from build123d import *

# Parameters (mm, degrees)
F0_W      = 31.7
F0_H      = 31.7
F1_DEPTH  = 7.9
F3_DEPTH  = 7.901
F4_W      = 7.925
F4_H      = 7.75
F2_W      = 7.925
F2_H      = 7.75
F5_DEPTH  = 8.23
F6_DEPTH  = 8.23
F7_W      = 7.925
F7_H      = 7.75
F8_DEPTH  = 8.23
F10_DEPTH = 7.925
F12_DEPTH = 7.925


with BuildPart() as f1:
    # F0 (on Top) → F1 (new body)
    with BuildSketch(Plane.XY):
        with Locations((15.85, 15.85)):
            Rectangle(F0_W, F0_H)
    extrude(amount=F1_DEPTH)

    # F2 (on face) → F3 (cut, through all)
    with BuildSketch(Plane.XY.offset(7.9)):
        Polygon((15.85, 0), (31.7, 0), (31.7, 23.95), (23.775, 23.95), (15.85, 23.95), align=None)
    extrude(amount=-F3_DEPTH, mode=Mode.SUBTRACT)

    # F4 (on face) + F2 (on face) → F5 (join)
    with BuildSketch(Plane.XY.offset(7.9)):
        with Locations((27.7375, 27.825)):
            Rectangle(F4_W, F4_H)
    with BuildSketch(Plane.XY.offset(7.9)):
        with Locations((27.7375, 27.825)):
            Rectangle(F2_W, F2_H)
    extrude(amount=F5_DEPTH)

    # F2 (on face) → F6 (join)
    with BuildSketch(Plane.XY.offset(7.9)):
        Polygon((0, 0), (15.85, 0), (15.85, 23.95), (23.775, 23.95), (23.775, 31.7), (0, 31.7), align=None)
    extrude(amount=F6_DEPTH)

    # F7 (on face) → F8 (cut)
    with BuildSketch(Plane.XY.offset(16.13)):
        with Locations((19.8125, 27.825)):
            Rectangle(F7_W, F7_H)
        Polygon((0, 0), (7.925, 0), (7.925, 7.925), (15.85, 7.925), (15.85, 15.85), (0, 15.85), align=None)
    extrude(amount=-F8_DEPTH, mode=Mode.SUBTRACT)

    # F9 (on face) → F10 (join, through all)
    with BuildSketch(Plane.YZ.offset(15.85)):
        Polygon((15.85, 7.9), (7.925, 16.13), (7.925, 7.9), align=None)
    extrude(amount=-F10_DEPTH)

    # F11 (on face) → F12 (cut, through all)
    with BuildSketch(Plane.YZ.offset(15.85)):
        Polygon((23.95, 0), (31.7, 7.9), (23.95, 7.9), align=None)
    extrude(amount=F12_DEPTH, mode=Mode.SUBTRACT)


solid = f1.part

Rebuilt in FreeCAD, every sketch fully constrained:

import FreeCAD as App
import Part
import Sketcher
from FreeCAD import Vector
Q = App.Units.Quantity


def add_polygon(sketch, points):
    """Adds a closed chain of lines whose ends are joined by coincident constraints."""
    first, n = sketch.GeometryCount, len(points)
    for a, b in zip(points, points[1:] + points[:1]):
        sketch.addGeometry(Part.LineSegment(App.Vector(*a, 0), App.Vector(*b, 0)), False)
    for i in range(n):
        sketch.addConstraint(Sketcher.Constraint("Coincident", first + i, 2, first + (i + 1) % n, 1))

doc = App.newDocument("Part")
body = doc.addObject("PartDesign::Body", "Body")

# Sketch on XY plane
sketch1 = body.newObject("Sketcher::SketchObject", "Sketch")
sketch1.AttachmentSupport = (doc.getObject("XY_Plane"), [""])
sketch1.MapMode = "FlatFace"
add_polygon(sketch1, [(0, 32), (0, 0), (32, 0), (32, 32)])  # lines 0-3
sketch1.addConstraint([
    Sketcher.Constraint("Vertical", 0),
    Sketcher.Constraint("Horizontal", 1),
    Sketcher.Constraint("Vertical", 2),
    Sketcher.Constraint("Horizontal", 3),
    Sketcher.Constraint("Coincident", 0, 2, -1, 1),
    Sketcher.Constraint("Equal", 3, 0),
    Sketcher.Constraint("DistanceX", 1, 1, 1, 2, Q("31.7 mm")),
])
pad1 = body.newObject("PartDesign::Pad", "Pad")
pad1.Profile = sketch1
pad1.Length = 7.9

# Sketch on XY plane
sketch2 = body.newObject("Sketcher::SketchObject", "Sketch001")
sketch2.AttachmentSupport = (doc.getObject("XY_Plane"), [""])
sketch2.MapMode = "FlatFace"
sketch2.AttachmentOffset = App.Placement(Vector(0, 0, 7.9), App.Rotation())
add_polygon(sketch2, [(16, 0), (32, 0), (32, 24), (16, 24)])  # lines 0-3
sketch2.addConstraint([
    Sketcher.Constraint("Horizontal", 0),
    Sketcher.Constraint("Vertical", 1),
    Sketcher.Constraint("Horizontal", 2),
    Sketcher.Constraint("Vertical", 3),
    Sketcher.Constraint("PointOnObject", 0, 2, -1),
    Sketcher.Constraint("DistanceX", 0, 1, 0, 2, Q("15.85 mm")),
    Sketcher.Constraint("DistanceY", 1, 1, 1, 2, Q("23.95 mm")),
    Sketcher.Constraint("DistanceX", -1, 1, 0, 2, Q("31.7 mm")),
])
pocket1 = body.newObject("PartDesign::Pocket", "Pocket")
pocket1.Profile = sketch2
pocket1.Type = "ThroughAll"

# Sketch on XY plane
sketch3 = body.newObject("Sketcher::SketchObject", "Sketch002")
sketch3.AttachmentSupport = (doc.getObject("XY_Plane"), [""])
sketch3.MapMode = "FlatFace"
sketch3.AttachmentOffset = App.Placement(Vector(0, 0, 7.9), App.Rotation())
add_polygon(sketch3, [(24, 32), (24, 24), (32, 24), (32, 32)])  # lines 0-3
sketch3.addConstraint([
    Sketcher.Constraint("Vertical", 0),
    Sketcher.Constraint("Horizontal", 1),
    Sketcher.Constraint("Vertical", 2),
    Sketcher.Constraint("Horizontal", 3),
    Sketcher.Constraint("DistanceY", 0, 2, 0, 1, Q("7.75 mm")),
    Sketcher.Constraint("DistanceX", -1, 1, 1, 2, Q("31.7 mm")),
    Sketcher.Constraint("DistanceY", -1, 1, 2, 2, Q("31.7 mm")),
    Sketcher.Constraint("DistanceX", 1, 1, 1, 2, Q("7.925 mm")),
])
pad2 = body.newObject("PartDesign::Pad", "Pad001")
pad2.Profile = sketch3
pad2.Length = 8.23

# Sketch on XY plane
sketch4 = body.newObject("Sketcher::SketchObject", "Sketch003")
sketch4.AttachmentSupport = (doc.getObject("XY_Plane"), [""])
sketch4.MapMode = "FlatFace"
sketch4.AttachmentOffset = App.Placement(Vector(0, 0, 7.9), App.Rotation())
add_polygon(sketch4, [(0, 0), (16, 0), (16, 24), (24, 24), (24, 32), (0, 32)])  # lines 0-5
sketch4.addConstraint([
    Sketcher.Constraint("Horizontal", 0),
    Sketcher.Constraint("Vertical", 1),
    Sketcher.Constraint("Horizontal", 2),
    Sketcher.Constraint("Vertical", 3),
    Sketcher.Constraint("Horizontal", 4),
    Sketcher.Constraint("Vertical", 5),
    Sketcher.Constraint("Coincident", 5, 2, -1, 1),
    Sketcher.Constraint("DistanceY", 5, 2, 5, 1, Q("31.7 mm")),
    Sketcher.Constraint("DistanceX", 0, 1, 0, 2, Q("15.85 mm")),
    Sketcher.Constraint("DistanceY", 1, 1, 1, 2, Q("23.95 mm")),
    Sketcher.Constraint("DistanceX", 2, 1, 2, 2, Q("7.925 mm")),
])
pad3 = body.newObject("PartDesign::Pad", "Pad002")
pad3.Profile = sketch4
pad3.Length = 8.23

# Sketch on XY plane
sketch5 = body.newObject("Sketcher::SketchObject", "Sketch004")
sketch5.AttachmentSupport = (doc.getObject("XY_Plane"), [""])
sketch5.MapMode = "FlatFace"
sketch5.AttachmentOffset = App.Placement(Vector(0, 0, 16.13), App.Rotation())
add_polygon(sketch5, [(16, 32), (16, 24), (24, 24), (24, 32)])  # lines 0-3
add_polygon(sketch5, [(0, 0), (8, 0), (8, 8), (16, 8), (16, 16), (0, 16)])  # lines 4-9
sketch5.addConstraint([
    Sketcher.Constraint("Vertical", 0),
    Sketcher.Constraint("Horizontal", 1),
    Sketcher.Constraint("Vertical", 2),
    Sketcher.Constraint("Horizontal", 3),
    Sketcher.Constraint("Horizontal", 4),
    Sketcher.Constraint("Vertical", 5),
    Sketcher.Constraint("Horizontal", 6),
    Sketcher.Constraint("Vertical", 7),
    Sketcher.Constraint("Horizontal", 8),
    Sketcher.Constraint("Vertical", 9),
    Sketcher.Constraint("Coincident", 9, 2, -1, 1),
    Sketcher.Constraint("Vertical", 3, 2, 6, 2),
    Sketcher.Constraint("Equal", 3, 4),
    Sketcher.Constraint("Equal", 4, 6),
    Sketcher.Constraint("Equal", 6, 5),
    Sketcher.Constraint("Equal", 5, 7),
    Sketcher.Constraint("DistanceX", 8, 2, 8, 1, Q("15.85 mm")),
    Sketcher.Constraint("DistanceY", 0, 2, 0, 1, Q("7.75 mm")),
    Sketcher.Constraint("DistanceY", -1, 1, 2, 2, Q("31.7 mm")),
])
pocket2 = body.newObject("PartDesign::Pocket", "Pocket001")
pocket2.Profile = sketch5
pocket2.Length = 8.23

# Sketch on YZ plane
sketch6 = body.newObject("Sketcher::SketchObject", "Sketch005")
sketch6.AttachmentSupport = (doc.getObject("YZ_Plane"), [""])
sketch6.MapMode = "FlatFace"
sketch6.AttachmentOffset = App.Placement(Vector(0, 0, 15.85), App.Rotation())
add_polygon(sketch6, [(16, 8), (8, 16), (8, 8)])  # lines 0-2
sketch6.addConstraint([
    Sketcher.Constraint("Vertical", 1),
    Sketcher.Constraint("Horizontal", 2),
    Sketcher.Constraint("DistanceY", 1, 2, 1, 1, Q("8.23 mm")),
    Sketcher.Constraint("DistanceY", -1, 1, 1, 2, Q("7.9 mm")),
    Sketcher.Constraint("DistanceX", 2, 1, 2, 2, Q("7.925 mm")),
    Sketcher.Constraint("DistanceX", -1, 1, 2, 2, Q("15.85 mm")),
])
pad4 = body.newObject("PartDesign::Pad", "Pad003")
pad4.Profile = sketch6
pad4.Length = 7.925
pad4.Reversed = True

# Sketch on YZ plane
sketch7 = body.newObject("Sketcher::SketchObject", "Sketch006")
sketch7.AttachmentSupport = (doc.getObject("YZ_Plane"), [""])
sketch7.MapMode = "FlatFace"
sketch7.AttachmentOffset = App.Placement(Vector(0, 0, 15.85), App.Rotation())
add_polygon(sketch7, [(24, 0), (32, 8), (24, 8)])  # lines 0-2
sketch7.addConstraint([
    Sketcher.Constraint("Horizontal", 1),
    Sketcher.Constraint("Vertical", 2),
    Sketcher.Constraint("PointOnObject", 2, 2, -1),
    Sketcher.Constraint("DistanceY", 2, 2, 2, 1, Q("7.9 mm")),
    Sketcher.Constraint("DistanceX", 1, 2, 1, 1, Q("7.75 mm")),
    Sketcher.Constraint("DistanceX", -1, 1, 0, 2, Q("31.7 mm")),
])
pocket3 = body.newObject("PartDesign::Pocket", "Pocket002")
pocket3.Profile = sketch7
pocket3.Length = 7.925
pocket3.Reversed = True

doc.recompute()
